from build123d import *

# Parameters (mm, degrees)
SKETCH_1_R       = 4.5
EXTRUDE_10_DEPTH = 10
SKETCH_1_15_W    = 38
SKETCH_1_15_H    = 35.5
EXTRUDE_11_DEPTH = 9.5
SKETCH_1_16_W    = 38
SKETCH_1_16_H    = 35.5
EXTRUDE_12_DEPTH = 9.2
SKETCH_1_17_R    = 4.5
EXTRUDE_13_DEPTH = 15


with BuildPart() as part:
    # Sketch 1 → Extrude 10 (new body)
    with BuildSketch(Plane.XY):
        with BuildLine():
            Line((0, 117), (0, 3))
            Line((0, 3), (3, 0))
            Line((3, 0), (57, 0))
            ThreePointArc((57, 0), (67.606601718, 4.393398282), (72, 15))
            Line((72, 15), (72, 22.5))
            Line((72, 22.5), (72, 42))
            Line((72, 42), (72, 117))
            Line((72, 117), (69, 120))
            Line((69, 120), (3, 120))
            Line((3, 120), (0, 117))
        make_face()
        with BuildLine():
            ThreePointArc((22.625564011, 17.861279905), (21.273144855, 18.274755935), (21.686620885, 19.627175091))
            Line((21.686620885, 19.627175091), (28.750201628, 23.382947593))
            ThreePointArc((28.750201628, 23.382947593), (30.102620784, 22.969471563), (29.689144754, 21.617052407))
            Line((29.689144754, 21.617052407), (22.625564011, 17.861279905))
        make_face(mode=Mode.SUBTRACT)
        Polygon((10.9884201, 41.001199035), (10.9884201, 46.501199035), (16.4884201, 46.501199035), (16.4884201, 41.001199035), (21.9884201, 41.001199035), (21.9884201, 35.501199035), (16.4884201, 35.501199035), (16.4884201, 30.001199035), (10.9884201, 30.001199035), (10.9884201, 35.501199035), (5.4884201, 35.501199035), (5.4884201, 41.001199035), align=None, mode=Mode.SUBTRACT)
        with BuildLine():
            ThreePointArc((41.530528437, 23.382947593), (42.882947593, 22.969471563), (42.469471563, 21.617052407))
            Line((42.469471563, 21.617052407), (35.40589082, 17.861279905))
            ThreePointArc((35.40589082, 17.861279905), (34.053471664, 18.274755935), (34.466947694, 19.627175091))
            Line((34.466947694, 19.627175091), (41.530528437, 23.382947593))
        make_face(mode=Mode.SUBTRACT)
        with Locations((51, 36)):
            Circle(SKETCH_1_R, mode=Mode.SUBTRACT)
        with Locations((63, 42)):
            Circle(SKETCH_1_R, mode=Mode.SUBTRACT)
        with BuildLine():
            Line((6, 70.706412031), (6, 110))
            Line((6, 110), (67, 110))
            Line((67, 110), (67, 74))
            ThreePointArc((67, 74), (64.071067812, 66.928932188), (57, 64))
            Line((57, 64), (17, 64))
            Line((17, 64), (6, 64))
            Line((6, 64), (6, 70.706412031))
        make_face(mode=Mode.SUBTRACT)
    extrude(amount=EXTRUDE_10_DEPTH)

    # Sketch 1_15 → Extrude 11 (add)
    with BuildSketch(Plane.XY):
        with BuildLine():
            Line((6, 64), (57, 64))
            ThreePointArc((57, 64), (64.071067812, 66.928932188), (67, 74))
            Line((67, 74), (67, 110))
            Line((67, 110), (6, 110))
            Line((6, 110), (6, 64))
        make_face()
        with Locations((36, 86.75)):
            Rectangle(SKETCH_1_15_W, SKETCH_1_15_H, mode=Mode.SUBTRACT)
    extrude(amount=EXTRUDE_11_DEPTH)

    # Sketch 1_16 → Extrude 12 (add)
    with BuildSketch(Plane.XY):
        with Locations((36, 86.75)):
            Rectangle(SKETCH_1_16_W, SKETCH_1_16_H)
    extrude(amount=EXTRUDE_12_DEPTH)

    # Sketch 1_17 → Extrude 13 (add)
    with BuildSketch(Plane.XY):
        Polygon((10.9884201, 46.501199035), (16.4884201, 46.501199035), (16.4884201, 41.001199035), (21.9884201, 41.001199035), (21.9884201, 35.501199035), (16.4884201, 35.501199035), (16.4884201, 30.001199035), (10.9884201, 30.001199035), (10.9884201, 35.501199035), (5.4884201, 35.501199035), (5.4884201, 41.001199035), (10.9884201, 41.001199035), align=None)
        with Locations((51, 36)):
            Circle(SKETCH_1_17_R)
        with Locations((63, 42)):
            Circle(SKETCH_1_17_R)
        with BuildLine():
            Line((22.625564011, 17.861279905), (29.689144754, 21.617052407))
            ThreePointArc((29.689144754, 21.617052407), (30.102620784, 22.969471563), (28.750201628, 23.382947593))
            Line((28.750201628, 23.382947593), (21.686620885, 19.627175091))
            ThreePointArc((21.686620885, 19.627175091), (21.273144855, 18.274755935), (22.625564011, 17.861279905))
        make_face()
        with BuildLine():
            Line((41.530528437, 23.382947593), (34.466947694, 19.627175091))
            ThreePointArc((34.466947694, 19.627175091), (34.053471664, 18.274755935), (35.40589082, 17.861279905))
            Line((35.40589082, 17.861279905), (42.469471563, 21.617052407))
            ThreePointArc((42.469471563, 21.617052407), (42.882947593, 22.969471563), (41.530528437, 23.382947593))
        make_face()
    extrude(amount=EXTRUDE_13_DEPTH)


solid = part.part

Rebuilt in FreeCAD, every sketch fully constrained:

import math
import FreeCAD as App
import Part
import Sketcher
Q = App.Units.Quantity


def add_polygon(sketch, points):
    """Adds a closed chain of lines whose ends are joined by coincident constraints."""
    first, n = sketch.GeometryCount, len(points)
    for a, b in zip(points, points[1:] + points[:1]):
        sketch.addGeometry(Part.LineSegment(App.Vector(*a, 0), App.Vector(*b, 0)), False)
    for i in range(n):
        sketch.addConstraint(Sketcher.Constraint("Coincident", first + i, 2, first + (i + 1) % n, 1))

doc = App.newDocument("Part")
body = doc.addObject("PartDesign::Body", "Body")

# Sketch on XY plane
sketch1 = doc.addObject("Sketcher::SketchObject", "Sketch")
body.addObject(sketch1)
sketch1.AttachmentSupport = (doc.XY_Plane, [""])
sketch1.MapMode = "FlatFace"
sketch1.addGeometry(Part.LineSegment(App.Vector(0, 117, 0), App.Vector(0, 3, 0)), False)  # 0
sketch1.addGeometry(Part.LineSegment(App.Vector(0, 3, 0), App.Vector(3, 0, 0)), False)  # 1
sketch1.addGeometry(Part.LineSegment(App.Vector(3, 0, 0), App.Vector(57, 0, 0)), False)  # 2
sketch1.addGeometry(Part.ArcOfCircle(Part.Circle(App.Vector(57, 15, 0), App.Vector(0, 0, 1), 15), math.radians(-90), math.radians(0)), False)  # 3
sketch1.addGeometry(Part.LineSegment(App.Vector(72, 15, 0), App.Vector(72, 117, 0)), False)  # 4
sketch1.addGeometry(Part.LineSegment(App.Vector(72, 117, 0), App.Vector(69, 120, 0)), False)  # 5
sketch1.addGeometry(Part.LineSegment(App.Vector(69, 120, 0), App.Vector(3, 120, 0)), False)  # 6
sketch1.addGeometry(Part.LineSegment(App.Vector(3, 120, 0), App.Vector(0, 117, 0)), False)  # 7
add_polygon(sketch1, [(5.5, 41), (11, 41), (11, 46.5), (16.5, 46.5), (16.5, 41), (22, 41), (22, 35.5), (16.5, 35.5), (16.5, 30), (11, 30), (11, 35.5), (5.5, 35.5)])  # lines 8-19
sketch1.addGeometry(Part.LineSegment(App.Vector(29.7, 21.6, 0), App.Vector(22.6, 17.9, 0)), False)  # 20
sketch1.addGeometry(Part.ArcOfCircle(Part.Circle(App.Vector(22.2, 18.7, 0), App.Vector(0, 0, 1), 1), math.radians(118), math.radians(298)), False)  # 21
sketch1.addGeometry(Part.LineSegment(App.Vector(21.7, 19.6, 0), App.Vector(28.8, 23.4, 0)), False)  # 22
sketch1.addGeometry(Part.ArcOfCircle(Part.Circle(App.Vector(29.2, 22.5, 0), App.Vector(0, 0, 1), 1), math.radians(-62), math.radians(118)), False)  # 23
sketch1.addGeometry(Part.LineSegment(App.Vector(34.5, 19.6, 0), App.Vector(41.5, 23.4, 0)), False)  # 24
sketch1.addGeometry(Part.ArcOfCircle(Part.Circle(App.Vector(42, 22.5, 0), App.Vector(0, 0, 1), 1), math.radians(-62), math.radians(118)), False)  # 25
sketch1.addGeometry(Part.LineSegment(App.Vector(42.5, 21.6, 0), App.Vector(35.4, 17.9, 0)), False)  # 26
sketch1.addGeometry(Part.ArcOfCircle(Part.Circle(App.Vector(34.9, 18.7, 0), App.Vector(0, 0, 1), 1), math.radians(118), math.radians(298)), False)  # 27
sketch1.addGeometry(Part.Circle(App.Vector(51, 36, 0), App.Vector(0, 0, 1), 4.5), False)  # 28
sketch1.addGeometry(Part.Circle(App.Vector(63, 42, 0), App.Vector(0, 0, 1), 4.5), False)  # 29
sketch1.addGeometry(Part.LineSegment(App.Vector(6, 64, 0), App.Vector(6, 110, 0)), False)  # 30
sketch1.addGeometry(Part.LineSegment(App.Vector(6, 110, 0), App.Vector(67, 110, 0)), False)  # 31
sketch1.addGeometry(Part.LineSegment(App.Vector(67, 110, 0), App.Vector(67, 74, 0)), False)  # 32
sketch1.addGeometry(Part.ArcOfCircle(Part.Circle(App.Vector(57, 74, 0), App.Vector(0, 0, 1), 10), math.radians(-90), math.radians(0)), False)  # 33
sketch1.addGeometry(Part.LineSegment(App.Vector(57, 64, 0), App.Vector(6, 64, 0)), False)  # 34
sketch1.addConstraint([
    Sketcher.Constraint("Coincident", 0, 2, 1, 1),
    Sketcher.Constraint("Coincident", 1, 2, 2, 1),
    Sketcher.Constraint("Tangent", 2, 2, 3, 1),
    Sketcher.Constraint("Tangent", 3, 2, 4, 1),
    Sketcher.Constraint("Coincident", 4, 2, 5, 1),
    Sketcher.Constraint("Coincident", 5, 2, 6, 1),
    Sketcher.Constraint("Coincident", 6, 2, 7, 1),
    Sketcher.Constraint("Coincident", 7, 2, 0, 1),
    Sketcher.Constraint("Tangent", 20, 2, 21, 2),
    Sketcher.Constraint("Tangent", 21, 1, 22, 1),
    Sketcher.Constraint("Tangent", 22, 2, 23, 2),
    Sketcher.Constraint("Tangent", 23, 1, 20, 1),
    Sketcher.Constraint("Tangent", 24, 2, 25, 2),
    Sketcher.Constraint("Tangent", 25, 1, 26, 1),
    Sketcher.Constraint("Tangent", 26, 2, 27, 2),
    Sketcher.Constraint("Tangent", 27, 1, 24, 1),
    Sketcher.Constraint("Coincident", 30, 2, 31, 1),
    Sketcher.Constraint("Coincident", 31, 2, 32, 1),
    Sketcher.Constraint("Tangent", 32, 2, 33, 2),
    Sketcher.Constraint("Tangent", 33, 1, 34, 1),
    Sketcher.Constraint("Coincident", 34, 2, 30, 1),
    Sketcher.Constraint("Vertical", 0),
    Sketcher.Constraint("Horizontal", 2),
    Sketcher.Constraint("Vertical", 4),
    Sketcher.Constraint("Horizontal", 6),
    Sketcher.Constraint("Horizontal", 8),
    Sketcher.Constraint("Vertical", 9),
    Sketcher.Constraint("Horizontal", 10),
    Sketcher.Constraint("Vertical", 11),
    Sketcher.Constraint("Horizontal", 12),
    Sketcher.Constraint("Vertical", 13),
    Sketcher.Constraint("Horizontal", 14),
    Sketcher.Constraint("Vertical", 15),
    Sketcher.Constraint("Horizontal", 16),
    Sketcher.Constraint("Vertical", 17),
    Sketcher.Constraint("Horizontal", 18),
    Sketcher.Constraint("Vertical", 19),
    Sketcher.Constraint("Vertical", 30),
    Sketcher.Constraint("Horizontal", 31),
    Sketcher.Constraint("Vertical", 32),
    Sketcher.Constraint("Horizontal", 34),
    Sketcher.Constraint("Equal", 21, 23),
    Sketcher.Constraint("Equal", 23, 25),
    Sketcher.Constraint("Equal", 25, 27),
    Sketcher.Constraint("Equal", 28, 29),
    Sketcher.Constraint("PointOnObject", 0, 2, -2),
    Sketcher.Constraint("PointOnObject", 1, 2, -1),
    Sketcher.Constraint("Parallel", 1, 5),
    Sketcher.Constraint("Perpendicular", 5, 7),
    Sketcher.Constraint("Parallel", 22, 24),
    Sketcher.Constraint("Horizontal", 23, 3, 25, 3),
    Sketcher.Constraint("Horizontal", 21, 3, 27, 3),
    Sketcher.Constraint("Horizontal", 4, 2, 7, 2),
    Sketcher.Constraint("Horizontal", 8, 2, 11, 2),
    Sketcher.Constraint("Horizontal", 14, 2, 17, 2),
    Sketcher.Constraint("Vertical", 3, 3, 33, 3),
    Sketcher.Constraint("Vertical", 1, 2, 6, 2),
    Sketcher.Constraint("Vertical", 11, 2, 14, 2),
    Sketcher.Constraint("Vertical", 9, 2, 16, 2),
    Sketcher.Constraint("Equal", 8, 10),
    Sketcher.Constraint("Equal", 10, 12),
    Sketcher.Constraint("Equal", 18, 9),
    Sketcher.Constraint("Equal", 11, 13),
    Sketcher.Constraint("Equal", 13, 15),
    Sketcher.Constraint("Equal", 1, 5),
    Sketcher.Constraint("Diameter", 28, 9.0),
    Sketcher.Constraint("Radius", 3, 15.0),
    Sketcher.Constraint("Radius", 21, 1.0),
    Sketcher.Constraint("Radius", 33, 10.0),
    Sketcher.Constraint("DistanceX", 2, 1, 2, 2, 54.0),
    Sketcher.Constraint("DistanceX", 6, 2, 6, 1, 66.0),
    Sketcher.Constraint("DistanceX", 31, 1, 31, 2, 61.0),
    Sketcher.Constraint("DistanceY", 0, 2, 0, 1, 114.0),
    Sketcher.Constraint("DistanceY", 30, 1, 30, 2, 46.0),
    Sketcher.Constraint("Angle", 20, Q("-152 deg")),
    Sketcher.Constraint("Distance", 20, 8.0),
    Sketcher.Constraint("DistanceX", 8, 1, 8, 2, 5.5),
    Sketcher.Constraint("DistanceX", -1, 1, 25, 3, 42.0),
    Sketcher.Constraint("DistanceX", -1, 1, 28, 3, 51.0),
    Sketcher.Constraint("DistanceY", -1, 1, 28, 3, 36.0),
    Sketcher.Constraint("DistanceX", -1, 1, 29, 3, 63.0),
    Sketcher.Constraint("DistanceY", -1, 1, 29, 3, 42.0),
    Sketcher.Constraint("DistanceY", -1, 1, 33, 3, 74.0),
    Sketcher.Constraint("DistanceY", -1, 1, 23, 3, 22.5),
    Sketcher.Constraint("DistanceX", 8, 2, 27, 3, 23.947999),
    Sketcher.Constraint("DistanceY", -1, 1, 8, 2, 41.001199),
    Sketcher.Constraint("DistanceX", -1, 1, 22, 2, 28.750202),
])
pad1 = doc.addObject("PartDesign::Pad", "Pad")
body.addObject(pad1)
pad1.Profile = sketch1
pad1.Length = 10

# Sketch on XY plane
sketch2 = doc.addObject("Sketcher::SketchObject", "Sketch001")
body.addObject(sketch2)
sketch2.AttachmentSupport = (doc.XY_Plane, [""])
sketch2.MapMode = "FlatFace"
sketch2.addGeometry(Part.LineSegment(App.Vector(6, 64, 0), App.Vector(57, 64, 0)), False)  # 0
sketch2.addGeometry(Part.ArcOfCircle(Part.Circle(App.Vector(57, 74, 0), App.Vector(0, 0, 1), 10), math.radians(-90), math.radians(0)), False)  # 1
sketch2.addGeometry(Part.LineSegment(App.Vector(67, 74, 0), App.Vector(67, 110, 0)), False)  # 2
sketch2.addGeometry(Part.LineSegment(App.Vector(67, 110, 0), App.Vector(6, 110, 0)), False)  # 3
sketch2.addGeometry(Part.LineSegment(App.Vector(6, 110, 0), App.Vector(6, 64, 0)), False)  # 4
add_polygon(sketch2, [(55, 69), (17, 69), (17, 104), (55, 104)])  # lines 5-8
sketch2.addConstraint([
    Sketcher.Constraint("Tangent", 0, 2, 1, 1),
    Sketcher.Constraint("Tangent", 1, 2, 2, 1),
    Sketcher.Constraint("Coincident", 2, 2, 3, 1),
    Sketcher.Constraint("Coincident", 3, 2, 4, 1),
    Sketcher.Constraint("Coincident", 4, 2, 0, 1),
    Sketcher.Constraint("Horizontal", 0),
    Sketcher.Constraint("Vertical", 2),
    Sketcher.Constraint("Horizontal", 3),
    Sketcher.Constraint("Vertical", 4),
    Sketcher.Constraint("Horizontal", 5),
    Sketcher.Constraint("Vertical", 6),
    Sketcher.Constraint("Horizontal", 7),
    Sketcher.Constraint("Vertical", 8),
    Sketcher.Constraint("Radius", 1, 10.0),
    Sketcher.Constraint("DistanceX", 0, 1, 0, 2, 51.0),
    Sketcher.Constraint("DistanceX", 5, 2, 5, 1, 38.0),
    Sketcher.Constraint("DistanceY", 2, 1, 2, 2, 36.0),
    Sketcher.Constraint("DistanceY", 6, 1, 6, 2, 35.5),
    Sketcher.Constraint("DistanceX", -1, 1, 1, 3, 57.0),
    Sketcher.Constraint("DistanceY", -1, 1, 1, 3, 74.0),
    Sketcher.Constraint("DistanceX", -1, 1, 5, 2, 17.0),
    Sketcher.Constraint("DistanceY", -1, 1, 5, 2, 69.0),
])
pad2 = doc.addObject("PartDesign::Pad", "Pad001")
body.addObject(pad2)
pad2.Profile = sketch2
pad2.Length = 9.5

# Sketch on XY plane
sketch3 = doc.addObject("Sketcher::SketchObject", "Sketch002")
body.addObject(sketch3)
sketch3.AttachmentSupport = (doc.XY_Plane, [""])
sketch3.MapMode = "FlatFace"
add_polygon(sketch3, [(17, 104), (17, 69), (55, 69), (55, 104)])  # lines 0-3
sketch3.addConstraint([
    Sketcher.Constraint("Vertical", 0),
    Sketcher.Constraint("Horizontal", 1),
    Sketcher.Constraint("Vertical", 2),
    Sketcher.Constraint("Horizontal", 3),
    Sketcher.Constraint("DistanceX", 1, 1, 1, 2, 38.0),
    Sketcher.Constraint("DistanceY", 0, 2, 0, 1, 35.5),
    Sketcher.Constraint("DistanceX", -1, 1, 0, 2, 17.0),
    Sketcher.Constraint("DistanceY", -1, 1, 0, 2, 69.0),
])
pad3 = doc.addObject("PartDesign::Pad", "Pad002")
body.addObject(pad3)
pad3.Profile = sketch3
pad3.Length = 9.2

# Sketch on XY plane
sketch4 = doc.addObject("Sketcher::SketchObject", "Sketch003")
body.addObject(sketch4)
sketch4.AttachmentSupport = (doc.XY_Plane, [""])
sketch4.MapMode = "FlatFace"
add_polygon(sketch4, [(16.5, 46.5), (11, 46.5), (11, 41), (5.5, 41), (5.5, 35.5), (11, 35.5), (11, 30), (16.5, 30), (16.5, 35.5), (22, 35.5), (22, 41), (16.5, 41)])  # lines 0-11
sketch4.addGeometry(Part.Circle(App.Vector(51, 36, 0), App.Vector(0, 0, 1), 4.5), False)  # 12
sketch4.addGeometry(Part.Circle(App.Vector(63, 42, 0), App.Vector(0, 0, 1), 4.5), False)  # 13
sketch4.addGeometry(Part.LineSegment(App.Vector(22.6, 17.9, 0), App.Vector(29.7, 21.6, 0)), False)  # 14
sketch4.addGeometry(Part.ArcOfCircle(Part.Circle(App.Vector(29.2, 22.5, 0), App.Vector(0, 0, 1), 1), math.radians(-62), math.radians(118)), False)  # 15
sketch4.addGeometry(Part.LineSegment(App.Vector(28.8, 23.4, 0), App.Vector(21.7, 19.6, 0)), False)  # 16
sketch4.addGeometry(Part.ArcOfCircle(Part.Circle(App.Vector(22.2, 18.7, 0), App.Vector(0, 0, 1), 1), math.radians(118), math.radians(298)), False)  # 17
sketch4.addGeometry(Part.LineSegment(App.Vector(41.5, 23.4, 0), App.Vector(34.5, 19.6, 0)), False)  # 18
sketch4.addGeometry(Part.ArcOfCircle(Part.Circle(App.Vector(34.9, 18.7, 0), App.Vector(0, 0, 1), 1), math.radians(118), math.radians(298)), False)  # 19
sketch4.addGeometry(Part.LineSegment(App.Vector(35.4, 17.9, 0), App.Vector(42.5, 21.6, 0)), False)  # 20
sketch4.addGeometry(Part.ArcOfCircle(Part.Circle(App.Vector(42, 22.5, 0), App.Vector(0, 0, 1), 1), math.radians(-62), math.radians(118)), False)  # 21
sketch4.addConstraint([
    Sketcher.Constraint("Tangent", 14, 2, 15, 1),
    Sketcher.Constraint("Tangent", 15, 2, 16, 1),
    Sketcher.Constraint("Tangent", 16, 2, 17, 1),
    Sketcher.Constraint("Tangent", 17, 2, 14, 1),
    Sketcher.Constraint("Tangent", 18, 2, 19, 1),
    Sketcher.Constraint("Tangent", 19, 2, 20, 1),
    Sketcher.Constraint("Tangent", 20, 2, 21, 1),
    Sketcher.Constraint("Tangent", 21, 2, 18, 1),
    Sketcher.Constraint("Horizontal", 0),
    Sketcher.Constraint("Vertical", 1),
    Sketcher.Constraint("Horizontal", 2),
    Sketcher.Constraint("Vertical", 3),
    Sketcher.Constraint("Horizontal", 4),
    Sketcher.Constraint("Vertical", 5),
    Sketcher.Constraint("Horizontal", 6),
    Sketcher.Constraint("Vertical", 7),
    Sketcher.Constraint("Horizontal", 8),
    Sketcher.Constraint("Vertical", 9),
    Sketcher.Constraint("Horizontal", 10),
    Sketcher.Constraint("Vertical", 11),
    Sketcher.Constraint("Equal", 12, 13),
    Sketcher.Constraint("Equal", 15, 17),
    Sketcher.Constraint("Equal", 17, 19),
    Sketcher.Constraint("Equal", 19, 21),
    Sketcher.Constraint("Parallel", 16, 18),
    Sketcher.Constraint("Horizontal", 17, 3, 19, 3),
    Sketcher.Constraint("Horizontal", 15, 3, 21, 3),
    Sketcher.Constraint("Horizontal", 4, 2, 7, 2),
    Sketcher.Constraint("Horizontal", 2, 2, 9, 2),
    Sketcher.Constraint("Vertical", 1, 2, 4, 2),
    Sketcher.Constraint("Vertical", 7, 2, 10, 2),
    Sketcher.Constraint("Equal", 0, 2),
    Sketcher.Constraint("Equal", 6, 8),
    Sketcher.Constraint("Equal", 10, 1),
    Sketcher.Constraint("Equal", 1, 3),
    Sketcher.Constraint("Equal", 3, 5),
    Sketcher.Constraint("Diameter", 12, 9.0),
    Sketcher.Constraint("Radius", 15, 1.0),
    Sketcher.Constraint("Angle", 14, Q("28 deg")),
    Sketcher.Constraint("Distance", 14, 8.0),
    Sketcher.Constraint("DistanceX", 0, 2, 0, 1, 5.5),
    Sketcher.Constraint("DistanceX", -1, 1, 12, 3, 51.0),
    Sketcher.Constraint("DistanceY", -1, 1, 12, 3, 36.0),
    Sketcher.Constraint("DistanceX", -1, 1, 13, 3, 63.0),
    Sketcher.Constraint("DistanceY", -1, 1, 13, 3, 42.0),
    Sketcher.Constraint("DistanceX", -1, 1, 21, 3, 42.0),
    Sketcher.Constraint("DistanceY", -1, 1, 15, 3, 22.5),
    Sketcher.Constraint("DistanceX", 0, 2, 19, 3, 23.947999),
    Sketcher.Constraint("DistanceY", -1, 1, 0, 2, 46.501199),
    Sketcher.Constraint("DistanceX", -1, 1, 15, 2, 28.750202),
])
pad4 = doc.addObject("PartDesign::Pad", "Pad003")
body.addObject(pad4)
pad4.Profile = sketch4
pad4.Length = 15

doc.recompute()
